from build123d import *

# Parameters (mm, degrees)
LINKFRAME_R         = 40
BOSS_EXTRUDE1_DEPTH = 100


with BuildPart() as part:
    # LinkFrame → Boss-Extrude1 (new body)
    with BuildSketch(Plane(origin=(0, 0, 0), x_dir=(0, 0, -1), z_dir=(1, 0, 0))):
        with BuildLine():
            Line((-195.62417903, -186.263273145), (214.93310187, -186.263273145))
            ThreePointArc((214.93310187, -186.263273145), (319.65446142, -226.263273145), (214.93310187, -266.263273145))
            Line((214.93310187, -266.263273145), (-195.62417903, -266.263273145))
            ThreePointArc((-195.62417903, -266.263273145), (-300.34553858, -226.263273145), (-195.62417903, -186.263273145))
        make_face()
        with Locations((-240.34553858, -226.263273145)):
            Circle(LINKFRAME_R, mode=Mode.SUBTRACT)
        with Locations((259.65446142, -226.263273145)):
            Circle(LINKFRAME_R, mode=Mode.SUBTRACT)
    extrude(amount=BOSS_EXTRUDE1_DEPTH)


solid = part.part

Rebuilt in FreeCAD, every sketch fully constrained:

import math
import FreeCAD as App
import Part
import Sketcher

V = App.Vector
Q = App.Units.Quantity

doc = App.newDocument("Part")
body = doc.addObject("PartDesign::Body", "Body")

sketch1 = doc.addObject("Sketcher::SketchObject", "Sketch")
body.addObject(sketch1)
sketch1.AttachmentSupport = (doc.YZ_Plane, [""])
sketch1.MapMode = "FlatFace"
sketch1.addGeometry([
    Part.LineSegment(V(-186, -215, 0), V(-186, 196, 0)),
    Part.ArcOfCircle(Part.Circle(V(-226, 240, 0), V(0, 0, 1), 60), math.radians(-48), math.radians(228)),
    Part.LineSegment(V(-266, 196, 0), V(-266, -215, 0)),
    Part.ArcOfCircle(Part.Circle(V(-226, -260, 0), V(0, 0, 1), 60), math.radians(132), math.radians(408)),
    Part.Circle(V(-226, -260, 0), V(0, 0, 1), 40),
    Part.Circle(V(-226, 240, 0), V(0, 0, 1), 40),
], False)
sketch1.addConstraint([
    Sketcher.Constraint("Coincident", 0, 2, 1, 1),
    Sketcher.Constraint("Coincident", 1, 2, 2, 1),
    Sketcher.Constraint("Coincident", 2, 2, 3, 1),
    Sketcher.Constraint("Coincident", 3, 2, 0, 1),
    Sketcher.Constraint("Vertical", 0),
    Sketcher.Constraint("Vertical", 2),
    Sketcher.Constraint("Coincident", 4, 3, 3, 3),
    Sketcher.Constraint("Coincident", 5, 3, 1, 3),
    Sketcher.Constraint("Equal", 1, 3),
    Sketcher.Constraint("Equal", 4, 5),
    Sketcher.Constraint("Horizontal", 0, 2, 1, 2),
    Sketcher.Constraint("Horizontal", 2, 2, 3, 2),
    Sketcher.Constraint("Diameter", 4, Q("80 mm")),
    Sketcher.Constraint("Radius", 1, Q("60 mm")),
    Sketcher.Constraint("DistanceY", 3, 3, 1, 3, Q("500 mm")),
    Sketcher.Constraint("DistanceX", 1, 3, 0, 2, Q("40 mm")),
    Sketcher.Constraint("DistanceY", 2, 2, -1, 1, Q("214.933102 mm")),
    Sketcher.Constraint("DistanceX", 1, 3, -1, 1, Q("226.263273 mm")),
])
pad1 = doc.addObject("PartDesign::Pad", "Pad")
body.addObject(pad1)
pad1.Profile = sketch1
pad1.Length = 100

doc.recompute()
